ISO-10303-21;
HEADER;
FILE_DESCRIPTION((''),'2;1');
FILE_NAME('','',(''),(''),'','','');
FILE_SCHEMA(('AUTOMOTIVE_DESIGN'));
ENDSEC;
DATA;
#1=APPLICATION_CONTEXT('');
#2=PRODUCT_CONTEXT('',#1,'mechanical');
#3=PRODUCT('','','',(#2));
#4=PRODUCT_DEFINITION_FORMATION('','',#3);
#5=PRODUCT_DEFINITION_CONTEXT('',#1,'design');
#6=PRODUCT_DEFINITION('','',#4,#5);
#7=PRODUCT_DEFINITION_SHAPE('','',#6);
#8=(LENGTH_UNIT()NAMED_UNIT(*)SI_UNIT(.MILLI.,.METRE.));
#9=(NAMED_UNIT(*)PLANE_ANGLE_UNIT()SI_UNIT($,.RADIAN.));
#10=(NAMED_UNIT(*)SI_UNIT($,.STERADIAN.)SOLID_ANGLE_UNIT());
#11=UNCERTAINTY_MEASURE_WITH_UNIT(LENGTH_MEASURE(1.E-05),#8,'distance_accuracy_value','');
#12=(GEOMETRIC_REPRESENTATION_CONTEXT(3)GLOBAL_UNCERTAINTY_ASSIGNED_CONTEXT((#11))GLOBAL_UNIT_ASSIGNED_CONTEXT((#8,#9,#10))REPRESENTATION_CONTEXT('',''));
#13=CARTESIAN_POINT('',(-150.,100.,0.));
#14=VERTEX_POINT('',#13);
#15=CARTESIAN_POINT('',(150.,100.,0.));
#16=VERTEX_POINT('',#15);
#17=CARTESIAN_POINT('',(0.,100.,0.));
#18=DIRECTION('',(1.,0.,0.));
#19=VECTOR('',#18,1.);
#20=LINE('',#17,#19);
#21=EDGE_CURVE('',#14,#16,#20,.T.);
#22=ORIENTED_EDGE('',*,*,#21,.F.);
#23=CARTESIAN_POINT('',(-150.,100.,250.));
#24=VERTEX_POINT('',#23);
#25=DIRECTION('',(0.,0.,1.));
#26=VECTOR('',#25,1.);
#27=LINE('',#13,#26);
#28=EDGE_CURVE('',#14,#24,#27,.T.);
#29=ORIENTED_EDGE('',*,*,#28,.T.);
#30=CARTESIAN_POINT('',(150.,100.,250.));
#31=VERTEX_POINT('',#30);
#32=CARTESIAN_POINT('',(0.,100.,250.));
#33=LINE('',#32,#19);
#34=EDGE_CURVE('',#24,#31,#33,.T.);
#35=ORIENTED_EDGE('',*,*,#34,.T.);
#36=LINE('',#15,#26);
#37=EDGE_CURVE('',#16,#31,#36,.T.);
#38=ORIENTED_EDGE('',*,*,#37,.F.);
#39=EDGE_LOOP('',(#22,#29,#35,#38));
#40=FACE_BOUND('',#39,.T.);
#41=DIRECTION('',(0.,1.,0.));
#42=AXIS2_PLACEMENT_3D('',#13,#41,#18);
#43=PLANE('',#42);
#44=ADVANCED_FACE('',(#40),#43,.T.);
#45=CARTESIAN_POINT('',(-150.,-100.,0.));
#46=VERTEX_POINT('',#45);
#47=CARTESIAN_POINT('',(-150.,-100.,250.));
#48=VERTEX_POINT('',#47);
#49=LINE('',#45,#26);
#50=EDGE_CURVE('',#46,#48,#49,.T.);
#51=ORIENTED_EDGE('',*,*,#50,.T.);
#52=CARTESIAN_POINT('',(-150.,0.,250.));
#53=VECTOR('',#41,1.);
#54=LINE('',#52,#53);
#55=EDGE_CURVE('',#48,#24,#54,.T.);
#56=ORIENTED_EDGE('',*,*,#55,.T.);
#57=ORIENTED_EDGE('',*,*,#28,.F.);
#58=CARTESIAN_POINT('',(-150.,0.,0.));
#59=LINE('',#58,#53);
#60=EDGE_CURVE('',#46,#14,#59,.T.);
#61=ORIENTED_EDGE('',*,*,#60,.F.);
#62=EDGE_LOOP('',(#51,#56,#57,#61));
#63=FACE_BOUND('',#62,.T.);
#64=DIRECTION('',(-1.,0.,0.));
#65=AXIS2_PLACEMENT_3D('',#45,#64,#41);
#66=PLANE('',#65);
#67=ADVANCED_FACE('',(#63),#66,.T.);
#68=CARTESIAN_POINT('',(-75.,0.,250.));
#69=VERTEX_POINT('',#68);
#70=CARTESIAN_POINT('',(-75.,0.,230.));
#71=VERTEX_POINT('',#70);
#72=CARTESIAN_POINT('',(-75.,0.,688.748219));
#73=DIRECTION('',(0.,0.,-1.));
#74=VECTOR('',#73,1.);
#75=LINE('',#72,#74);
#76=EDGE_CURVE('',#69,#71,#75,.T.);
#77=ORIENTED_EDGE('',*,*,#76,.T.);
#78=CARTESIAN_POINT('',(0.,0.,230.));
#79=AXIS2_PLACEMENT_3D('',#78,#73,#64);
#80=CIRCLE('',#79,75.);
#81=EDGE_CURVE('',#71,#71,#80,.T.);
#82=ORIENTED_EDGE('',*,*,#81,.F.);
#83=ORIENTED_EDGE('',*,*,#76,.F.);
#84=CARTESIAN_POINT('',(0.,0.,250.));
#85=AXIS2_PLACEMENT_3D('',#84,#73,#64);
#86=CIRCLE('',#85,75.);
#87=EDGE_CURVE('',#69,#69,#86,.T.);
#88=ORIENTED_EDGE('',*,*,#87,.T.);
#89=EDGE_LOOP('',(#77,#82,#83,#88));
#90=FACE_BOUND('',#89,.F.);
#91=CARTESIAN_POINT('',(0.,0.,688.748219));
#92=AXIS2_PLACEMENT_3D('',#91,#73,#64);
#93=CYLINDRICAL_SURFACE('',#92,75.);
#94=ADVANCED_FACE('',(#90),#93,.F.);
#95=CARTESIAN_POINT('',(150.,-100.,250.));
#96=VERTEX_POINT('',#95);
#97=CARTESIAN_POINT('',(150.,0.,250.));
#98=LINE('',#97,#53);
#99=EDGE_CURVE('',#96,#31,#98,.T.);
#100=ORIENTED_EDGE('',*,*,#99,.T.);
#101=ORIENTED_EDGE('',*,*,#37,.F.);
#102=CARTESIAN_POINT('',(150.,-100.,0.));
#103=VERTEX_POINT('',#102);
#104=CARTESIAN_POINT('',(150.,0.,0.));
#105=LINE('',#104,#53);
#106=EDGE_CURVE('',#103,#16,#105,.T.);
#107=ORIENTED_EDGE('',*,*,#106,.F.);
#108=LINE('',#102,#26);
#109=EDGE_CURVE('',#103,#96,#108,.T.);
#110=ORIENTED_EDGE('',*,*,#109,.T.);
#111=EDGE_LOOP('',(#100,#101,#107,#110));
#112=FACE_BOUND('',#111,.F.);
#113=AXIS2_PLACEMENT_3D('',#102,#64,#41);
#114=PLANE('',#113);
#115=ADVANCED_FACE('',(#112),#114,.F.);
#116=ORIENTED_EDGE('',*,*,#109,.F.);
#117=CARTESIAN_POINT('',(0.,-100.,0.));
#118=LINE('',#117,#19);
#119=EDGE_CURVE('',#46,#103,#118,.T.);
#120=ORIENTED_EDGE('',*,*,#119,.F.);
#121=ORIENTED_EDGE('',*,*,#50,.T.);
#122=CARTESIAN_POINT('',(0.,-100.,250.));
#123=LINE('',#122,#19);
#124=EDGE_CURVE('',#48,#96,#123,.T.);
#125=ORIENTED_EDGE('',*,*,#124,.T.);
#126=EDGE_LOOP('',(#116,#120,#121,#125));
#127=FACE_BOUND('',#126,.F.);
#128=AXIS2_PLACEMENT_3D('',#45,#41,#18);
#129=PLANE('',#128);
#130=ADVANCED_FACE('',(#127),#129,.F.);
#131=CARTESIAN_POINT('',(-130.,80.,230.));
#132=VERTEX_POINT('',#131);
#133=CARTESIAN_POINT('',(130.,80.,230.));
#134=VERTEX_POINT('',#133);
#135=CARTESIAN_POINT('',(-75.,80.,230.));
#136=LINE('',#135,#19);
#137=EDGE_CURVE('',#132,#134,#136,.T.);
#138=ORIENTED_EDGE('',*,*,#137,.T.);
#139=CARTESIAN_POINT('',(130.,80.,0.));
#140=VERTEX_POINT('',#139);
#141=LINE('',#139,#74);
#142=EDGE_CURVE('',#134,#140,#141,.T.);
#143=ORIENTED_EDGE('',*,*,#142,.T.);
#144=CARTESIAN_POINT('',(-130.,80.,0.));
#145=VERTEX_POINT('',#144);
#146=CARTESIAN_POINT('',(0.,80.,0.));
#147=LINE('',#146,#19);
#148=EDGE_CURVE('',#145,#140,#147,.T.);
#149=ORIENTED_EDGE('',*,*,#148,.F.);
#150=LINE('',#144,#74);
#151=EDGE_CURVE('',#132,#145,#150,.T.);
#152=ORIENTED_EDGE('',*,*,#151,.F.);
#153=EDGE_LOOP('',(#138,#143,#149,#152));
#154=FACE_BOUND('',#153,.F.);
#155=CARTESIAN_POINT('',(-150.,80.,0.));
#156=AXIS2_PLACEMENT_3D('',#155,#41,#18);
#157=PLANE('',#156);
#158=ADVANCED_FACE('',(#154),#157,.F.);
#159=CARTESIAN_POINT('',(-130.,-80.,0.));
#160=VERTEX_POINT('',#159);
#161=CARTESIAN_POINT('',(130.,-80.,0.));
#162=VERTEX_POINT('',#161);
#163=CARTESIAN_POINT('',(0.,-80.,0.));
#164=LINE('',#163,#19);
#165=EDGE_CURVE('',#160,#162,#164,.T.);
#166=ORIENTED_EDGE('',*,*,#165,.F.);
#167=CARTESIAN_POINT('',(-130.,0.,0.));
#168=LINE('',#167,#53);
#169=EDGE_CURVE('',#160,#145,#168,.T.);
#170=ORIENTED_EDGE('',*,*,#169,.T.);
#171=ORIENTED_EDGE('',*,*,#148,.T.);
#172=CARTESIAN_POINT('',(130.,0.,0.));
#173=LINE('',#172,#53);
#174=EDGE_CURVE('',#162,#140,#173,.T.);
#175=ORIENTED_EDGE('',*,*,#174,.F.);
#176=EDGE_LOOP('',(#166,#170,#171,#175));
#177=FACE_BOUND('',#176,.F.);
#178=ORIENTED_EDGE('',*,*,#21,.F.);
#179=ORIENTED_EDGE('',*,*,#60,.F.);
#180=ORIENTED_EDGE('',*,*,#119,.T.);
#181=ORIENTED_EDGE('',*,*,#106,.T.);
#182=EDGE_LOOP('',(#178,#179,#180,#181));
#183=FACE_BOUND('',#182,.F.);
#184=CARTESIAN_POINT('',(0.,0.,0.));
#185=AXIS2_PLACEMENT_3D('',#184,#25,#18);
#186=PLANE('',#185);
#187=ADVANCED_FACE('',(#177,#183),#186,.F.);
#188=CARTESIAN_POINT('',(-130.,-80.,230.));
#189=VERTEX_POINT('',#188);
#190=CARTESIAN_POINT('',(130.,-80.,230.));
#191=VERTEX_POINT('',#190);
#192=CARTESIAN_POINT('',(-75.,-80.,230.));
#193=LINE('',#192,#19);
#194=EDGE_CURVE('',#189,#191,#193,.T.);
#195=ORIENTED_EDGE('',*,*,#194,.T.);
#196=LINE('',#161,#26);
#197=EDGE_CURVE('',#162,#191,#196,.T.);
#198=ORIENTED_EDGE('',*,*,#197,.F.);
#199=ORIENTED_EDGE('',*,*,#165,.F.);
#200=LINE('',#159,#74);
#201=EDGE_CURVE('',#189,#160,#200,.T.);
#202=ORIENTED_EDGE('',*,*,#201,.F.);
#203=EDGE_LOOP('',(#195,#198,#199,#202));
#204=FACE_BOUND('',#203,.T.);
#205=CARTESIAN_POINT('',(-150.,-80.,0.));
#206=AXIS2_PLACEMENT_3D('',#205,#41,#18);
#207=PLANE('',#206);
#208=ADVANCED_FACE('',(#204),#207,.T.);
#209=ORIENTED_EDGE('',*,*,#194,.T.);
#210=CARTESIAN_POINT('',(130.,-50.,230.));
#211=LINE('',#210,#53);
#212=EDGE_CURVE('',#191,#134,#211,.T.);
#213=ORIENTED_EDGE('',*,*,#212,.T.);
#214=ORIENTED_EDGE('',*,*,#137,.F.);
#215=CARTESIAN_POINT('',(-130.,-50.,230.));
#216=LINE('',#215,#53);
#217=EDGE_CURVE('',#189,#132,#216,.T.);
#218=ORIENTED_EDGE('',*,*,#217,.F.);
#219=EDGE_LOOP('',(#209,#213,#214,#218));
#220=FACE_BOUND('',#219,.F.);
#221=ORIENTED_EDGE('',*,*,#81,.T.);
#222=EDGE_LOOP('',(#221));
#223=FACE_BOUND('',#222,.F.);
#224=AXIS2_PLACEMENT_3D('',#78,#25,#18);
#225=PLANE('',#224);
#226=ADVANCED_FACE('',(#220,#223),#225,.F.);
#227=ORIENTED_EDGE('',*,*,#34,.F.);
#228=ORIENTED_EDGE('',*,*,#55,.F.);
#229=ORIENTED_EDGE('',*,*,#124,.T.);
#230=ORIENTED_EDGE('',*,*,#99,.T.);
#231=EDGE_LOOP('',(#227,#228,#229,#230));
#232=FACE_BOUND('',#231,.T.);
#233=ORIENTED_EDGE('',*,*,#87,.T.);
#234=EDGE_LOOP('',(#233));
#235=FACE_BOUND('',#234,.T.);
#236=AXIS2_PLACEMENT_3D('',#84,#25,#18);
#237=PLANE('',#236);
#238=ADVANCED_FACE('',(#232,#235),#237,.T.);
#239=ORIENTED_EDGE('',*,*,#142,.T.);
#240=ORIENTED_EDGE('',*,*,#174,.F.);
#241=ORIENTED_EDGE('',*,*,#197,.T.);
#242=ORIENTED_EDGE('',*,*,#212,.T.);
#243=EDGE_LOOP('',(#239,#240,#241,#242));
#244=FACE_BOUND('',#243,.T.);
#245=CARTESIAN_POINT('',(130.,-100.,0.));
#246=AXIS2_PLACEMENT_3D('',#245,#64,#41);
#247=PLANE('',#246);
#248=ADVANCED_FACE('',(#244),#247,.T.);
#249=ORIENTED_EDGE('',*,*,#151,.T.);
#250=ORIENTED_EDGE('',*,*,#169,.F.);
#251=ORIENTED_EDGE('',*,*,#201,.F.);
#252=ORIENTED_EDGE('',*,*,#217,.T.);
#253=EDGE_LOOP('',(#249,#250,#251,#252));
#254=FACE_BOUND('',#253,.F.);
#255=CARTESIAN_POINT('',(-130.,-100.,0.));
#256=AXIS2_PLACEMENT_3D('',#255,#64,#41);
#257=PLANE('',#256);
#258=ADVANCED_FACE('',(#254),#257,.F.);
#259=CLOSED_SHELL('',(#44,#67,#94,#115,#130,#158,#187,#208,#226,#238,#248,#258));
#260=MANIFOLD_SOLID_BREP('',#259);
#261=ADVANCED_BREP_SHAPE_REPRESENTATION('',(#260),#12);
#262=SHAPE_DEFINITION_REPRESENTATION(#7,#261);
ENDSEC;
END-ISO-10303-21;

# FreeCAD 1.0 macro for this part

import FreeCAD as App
import Part
import Sketcher
from FreeCAD import Vector
Q = App.Units.Quantity


def faces_at(feature, points):
    """Names of the faces that lie closest to the given points."""
    faces = feature.Shape.Faces
    near = lambda p: min(range(len(faces)), key=lambda i: faces[i].distToShape(Part.Vertex(*p))[0])
    return sorted({f"Face{near(p) + 1}" for p in points})

doc = App.newDocument("Part")
body = doc.addObject("PartDesign::Body", "Body")

sketch1 = body.newObject("Sketcher::SketchObject", "Sketch")
sketch1.AttachmentSupport = (doc.getObject("XY_Plane"), [""])
sketch1.MapMode = "FlatFace"
sketch1.addGeometry(Part.LineSegment(Vector(-150, 100, 0), Vector(-150, -100, 0)), False)
sketch1.addGeometry(Part.LineSegment(Vector(-150, -100, 0), Vector(150, -100, 0)), False)
sketch1.addGeometry(Part.LineSegment(Vector(150, -100, 0), Vector(150, 100, 0)), False)
sketch1.addGeometry(Part.LineSegment(Vector(150, 100, 0), Vector(-150, 100, 0)), False)
sketch1.addConstraint(Sketcher.Constraint("Coincident", 0, 2, 1, 1))
sketch1.addConstraint(Sketcher.Constraint("Coincident", 1, 2, 2, 1))
sketch1.addConstraint(Sketcher.Constraint("Coincident", 2, 2, 3, 1))
sketch1.addConstraint(Sketcher.Constraint("Coincident", 3, 2, 0, 1))
sketch1.addConstraint(Sketcher.Constraint("Vertical", 0))
sketch1.addConstraint(Sketcher.Constraint("Horizontal", 1))
sketch1.addConstraint(Sketcher.Constraint("Vertical", 2))
sketch1.addConstraint(Sketcher.Constraint("Horizontal", 3))
sketch1.addConstraint(Sketcher.Constraint("Symmetric", 0, 2, 2, 2, -1, 1))
sketch1.addConstraint(Sketcher.Constraint("DistanceX", 1, 1, 1, 2, Q("300 mm")))
sketch1.addConstraint(Sketcher.Constraint("DistanceY", 0, 2, 0, 1, Q("200 mm")))
pad1 = body.newObject("PartDesign::Pad", "Pad")
pad1.Profile = sketch1
pad1.Length = 250
doc.recompute()

thickness = body.newObject("PartDesign::Thickness", "Thickness")
thickness.Base = (pad1, faces_at(pad1, [(0, 0, 0)]))
thickness.Value = 20
thickness.Reversed = True
thickness.Join = "Arc"

sketch2 = body.newObject("Sketcher::SketchObject", "Sketch001")
sketch2.AttachmentSupport = (doc.getObject("XY_Plane"), [""])
sketch2.MapMode = "FlatFace"
sketch2.AttachmentOffset = App.Placement(Vector(0, 0, 250), App.Rotation())
sketch2.addGeometry(Part.Circle(Vector(0, 0, 0), Vector(0, 0, 1), 75), False)
sketch2.addConstraint(Sketcher.Constraint("Coincident", 0, 3, -1, 1))
sketch2.addConstraint(Sketcher.Constraint("Diameter", 0, Q("150 mm")))
doc.recompute()
hole = body.newObject("PartDesign::Hole", "Hole")
hole.Profile = sketch2
hole.ThreadType = "None"
hole.Diameter = 150
hole.DepthType = "ThroughAll"

doc.recompute()
